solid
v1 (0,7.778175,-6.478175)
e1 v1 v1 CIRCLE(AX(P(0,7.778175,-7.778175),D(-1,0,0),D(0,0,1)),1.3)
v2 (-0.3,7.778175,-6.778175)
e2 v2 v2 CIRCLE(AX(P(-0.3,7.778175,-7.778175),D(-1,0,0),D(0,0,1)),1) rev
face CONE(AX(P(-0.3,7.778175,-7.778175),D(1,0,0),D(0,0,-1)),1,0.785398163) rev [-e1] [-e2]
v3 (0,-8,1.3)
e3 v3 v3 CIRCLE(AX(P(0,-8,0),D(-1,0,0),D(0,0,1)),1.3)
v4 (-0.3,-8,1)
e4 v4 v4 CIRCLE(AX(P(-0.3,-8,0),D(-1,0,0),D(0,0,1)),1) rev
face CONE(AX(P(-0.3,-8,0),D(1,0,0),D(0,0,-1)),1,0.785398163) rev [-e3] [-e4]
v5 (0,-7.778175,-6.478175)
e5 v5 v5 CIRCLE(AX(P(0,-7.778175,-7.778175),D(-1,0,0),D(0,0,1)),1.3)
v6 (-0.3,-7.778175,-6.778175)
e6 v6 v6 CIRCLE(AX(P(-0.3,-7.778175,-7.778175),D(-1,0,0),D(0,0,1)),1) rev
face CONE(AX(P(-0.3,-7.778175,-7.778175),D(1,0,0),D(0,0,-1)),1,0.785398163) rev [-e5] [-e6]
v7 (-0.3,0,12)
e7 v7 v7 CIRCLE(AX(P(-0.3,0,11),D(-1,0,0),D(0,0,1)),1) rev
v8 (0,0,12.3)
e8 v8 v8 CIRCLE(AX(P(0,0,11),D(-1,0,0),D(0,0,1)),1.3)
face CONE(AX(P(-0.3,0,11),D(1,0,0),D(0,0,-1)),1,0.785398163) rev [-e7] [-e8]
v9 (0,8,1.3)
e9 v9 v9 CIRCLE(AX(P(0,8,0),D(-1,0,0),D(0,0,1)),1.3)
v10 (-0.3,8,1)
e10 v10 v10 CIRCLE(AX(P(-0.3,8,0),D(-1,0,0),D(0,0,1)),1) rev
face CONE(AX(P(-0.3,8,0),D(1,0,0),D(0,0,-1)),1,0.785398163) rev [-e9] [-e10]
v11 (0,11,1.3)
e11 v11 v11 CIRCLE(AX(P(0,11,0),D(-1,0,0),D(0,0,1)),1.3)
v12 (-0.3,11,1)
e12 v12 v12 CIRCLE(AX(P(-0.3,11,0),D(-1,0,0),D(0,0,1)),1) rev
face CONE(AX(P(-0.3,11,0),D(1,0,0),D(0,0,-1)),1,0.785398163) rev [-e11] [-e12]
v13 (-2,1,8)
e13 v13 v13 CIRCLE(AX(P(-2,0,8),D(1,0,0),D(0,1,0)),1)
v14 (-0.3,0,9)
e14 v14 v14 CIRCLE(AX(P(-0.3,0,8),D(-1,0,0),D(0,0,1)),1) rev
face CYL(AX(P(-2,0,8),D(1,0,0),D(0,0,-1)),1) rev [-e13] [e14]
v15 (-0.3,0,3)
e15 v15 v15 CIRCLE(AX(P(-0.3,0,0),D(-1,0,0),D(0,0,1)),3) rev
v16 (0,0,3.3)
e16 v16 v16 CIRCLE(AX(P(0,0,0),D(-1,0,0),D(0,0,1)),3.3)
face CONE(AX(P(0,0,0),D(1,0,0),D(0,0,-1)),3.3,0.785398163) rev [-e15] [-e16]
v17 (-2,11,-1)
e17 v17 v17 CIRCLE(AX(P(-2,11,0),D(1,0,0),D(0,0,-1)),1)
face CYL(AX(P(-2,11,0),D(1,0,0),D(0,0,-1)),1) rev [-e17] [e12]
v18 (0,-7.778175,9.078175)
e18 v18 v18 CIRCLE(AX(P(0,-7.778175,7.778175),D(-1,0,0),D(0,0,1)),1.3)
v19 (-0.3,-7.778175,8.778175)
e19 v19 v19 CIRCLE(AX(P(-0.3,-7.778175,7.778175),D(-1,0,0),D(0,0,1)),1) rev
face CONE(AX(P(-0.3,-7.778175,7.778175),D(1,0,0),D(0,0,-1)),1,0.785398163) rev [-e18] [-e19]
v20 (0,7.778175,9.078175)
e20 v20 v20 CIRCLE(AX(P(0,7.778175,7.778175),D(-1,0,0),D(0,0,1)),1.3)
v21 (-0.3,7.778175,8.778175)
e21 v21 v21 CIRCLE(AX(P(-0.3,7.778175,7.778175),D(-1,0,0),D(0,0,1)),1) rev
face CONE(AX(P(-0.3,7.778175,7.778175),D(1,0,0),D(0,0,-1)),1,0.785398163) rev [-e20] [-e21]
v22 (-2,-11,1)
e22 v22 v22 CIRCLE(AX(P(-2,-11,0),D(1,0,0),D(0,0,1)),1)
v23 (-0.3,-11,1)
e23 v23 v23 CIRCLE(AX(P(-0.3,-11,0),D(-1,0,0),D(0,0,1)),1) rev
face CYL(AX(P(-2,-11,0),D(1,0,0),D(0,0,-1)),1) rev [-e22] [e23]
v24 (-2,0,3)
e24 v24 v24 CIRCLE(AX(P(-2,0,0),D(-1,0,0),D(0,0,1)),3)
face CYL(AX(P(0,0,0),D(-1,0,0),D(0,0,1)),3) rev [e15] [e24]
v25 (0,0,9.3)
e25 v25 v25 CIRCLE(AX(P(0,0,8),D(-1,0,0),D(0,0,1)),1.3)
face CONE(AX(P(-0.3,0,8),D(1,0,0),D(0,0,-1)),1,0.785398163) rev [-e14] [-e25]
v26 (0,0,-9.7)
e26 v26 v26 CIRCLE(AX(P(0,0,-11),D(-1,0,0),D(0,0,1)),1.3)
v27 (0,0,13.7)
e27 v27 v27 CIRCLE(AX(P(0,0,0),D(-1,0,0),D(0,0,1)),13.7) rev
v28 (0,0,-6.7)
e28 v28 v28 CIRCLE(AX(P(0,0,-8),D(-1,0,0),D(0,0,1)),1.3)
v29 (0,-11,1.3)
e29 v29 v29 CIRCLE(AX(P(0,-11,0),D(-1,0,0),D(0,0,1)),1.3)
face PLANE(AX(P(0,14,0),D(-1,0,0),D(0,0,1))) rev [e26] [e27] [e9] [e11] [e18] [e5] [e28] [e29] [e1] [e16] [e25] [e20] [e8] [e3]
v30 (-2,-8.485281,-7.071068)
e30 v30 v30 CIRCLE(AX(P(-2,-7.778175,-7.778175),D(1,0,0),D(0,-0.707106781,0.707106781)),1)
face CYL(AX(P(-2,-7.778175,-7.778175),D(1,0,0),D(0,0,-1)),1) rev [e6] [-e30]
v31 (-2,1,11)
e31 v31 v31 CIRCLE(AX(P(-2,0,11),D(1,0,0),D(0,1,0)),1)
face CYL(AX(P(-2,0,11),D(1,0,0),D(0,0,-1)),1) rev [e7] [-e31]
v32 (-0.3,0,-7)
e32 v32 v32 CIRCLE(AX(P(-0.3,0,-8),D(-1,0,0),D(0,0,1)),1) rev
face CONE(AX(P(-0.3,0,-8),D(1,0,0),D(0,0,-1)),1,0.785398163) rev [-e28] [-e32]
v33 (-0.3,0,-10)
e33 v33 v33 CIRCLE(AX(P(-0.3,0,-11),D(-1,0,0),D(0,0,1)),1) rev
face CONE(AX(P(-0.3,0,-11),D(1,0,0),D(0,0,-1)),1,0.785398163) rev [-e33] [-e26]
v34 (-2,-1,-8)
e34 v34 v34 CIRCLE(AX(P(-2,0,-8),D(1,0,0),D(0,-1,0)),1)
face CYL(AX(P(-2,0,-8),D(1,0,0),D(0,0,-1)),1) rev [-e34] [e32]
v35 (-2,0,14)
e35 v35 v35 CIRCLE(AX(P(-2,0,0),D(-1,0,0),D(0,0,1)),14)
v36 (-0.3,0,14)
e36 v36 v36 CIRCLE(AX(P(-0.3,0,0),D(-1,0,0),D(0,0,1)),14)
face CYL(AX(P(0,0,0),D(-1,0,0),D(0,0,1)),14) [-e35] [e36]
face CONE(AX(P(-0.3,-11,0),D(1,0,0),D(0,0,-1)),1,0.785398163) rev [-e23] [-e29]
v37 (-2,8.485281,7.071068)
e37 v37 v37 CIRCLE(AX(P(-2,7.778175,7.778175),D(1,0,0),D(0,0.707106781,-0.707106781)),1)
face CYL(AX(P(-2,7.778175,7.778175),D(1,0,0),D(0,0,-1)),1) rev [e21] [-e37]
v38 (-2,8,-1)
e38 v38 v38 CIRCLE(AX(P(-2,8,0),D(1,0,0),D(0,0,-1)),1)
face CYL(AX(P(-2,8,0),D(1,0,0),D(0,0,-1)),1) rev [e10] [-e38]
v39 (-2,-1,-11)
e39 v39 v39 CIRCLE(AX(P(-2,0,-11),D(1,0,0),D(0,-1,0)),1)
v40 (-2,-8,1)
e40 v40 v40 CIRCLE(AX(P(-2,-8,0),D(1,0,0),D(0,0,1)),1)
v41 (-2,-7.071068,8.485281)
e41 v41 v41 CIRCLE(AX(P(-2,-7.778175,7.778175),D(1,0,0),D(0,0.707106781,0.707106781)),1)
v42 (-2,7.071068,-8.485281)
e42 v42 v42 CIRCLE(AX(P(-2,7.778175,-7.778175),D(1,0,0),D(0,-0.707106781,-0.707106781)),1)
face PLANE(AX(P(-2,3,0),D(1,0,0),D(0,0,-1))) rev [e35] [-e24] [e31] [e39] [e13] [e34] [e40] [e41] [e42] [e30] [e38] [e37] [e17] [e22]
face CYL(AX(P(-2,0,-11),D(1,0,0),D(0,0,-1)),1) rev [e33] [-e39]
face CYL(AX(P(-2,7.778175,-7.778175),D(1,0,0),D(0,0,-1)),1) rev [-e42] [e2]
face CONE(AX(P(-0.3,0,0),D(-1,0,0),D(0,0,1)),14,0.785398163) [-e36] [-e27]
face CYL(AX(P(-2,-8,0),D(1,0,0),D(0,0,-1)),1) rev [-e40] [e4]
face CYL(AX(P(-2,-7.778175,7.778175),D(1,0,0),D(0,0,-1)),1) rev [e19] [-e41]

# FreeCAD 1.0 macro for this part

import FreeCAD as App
import Part
import Sketcher
from FreeCAD import Vector


def edges_at(feature, points):
    """Names of the edges that pass closest to the given points."""
    edges = feature.Shape.Edges
    near = lambda p: min(range(len(edges)), key=lambda i: edges[i].distToShape(Part.Vertex(*p))[0])
    return sorted({f"Edge{near(p) + 1}" for p in points})

doc = App.newDocument("Part")
body = doc.addObject("PartDesign::Body", "Body")

# Sketch on XY plane
sketch1 = body.newObject("Sketcher::SketchObject", "Sketch")
sketch1.AttachmentSupport = (doc.getObject("XY_Plane"), [""])
sketch1.MapMode = "FlatFace"
sketch1.addGeometry([
    Part.LineSegment(Vector(-2, 14, 0), Vector(-2, 3, 0)),
    Part.LineSegment(Vector(-2, 3, 0), Vector(0, 3, 0)),
    Part.LineSegment(Vector(0, 3, 0), Vector(0, 14, 0)),
    Part.LineSegment(Vector(0, 14, 0), Vector(-2, 14, 0)),
], False)
sketch1.addConstraint([
    Sketcher.Constraint("Coincident", 0, 2, 1, 1),
    Sketcher.Constraint("Coincident", 1, 2, 2, 1),
    Sketcher.Constraint("Coincident", 2, 2, 3, 1),
    Sketcher.Constraint("Coincident", 3, 2, 0, 1),
    Sketcher.Constraint("Vertical", 0),
    Sketcher.Constraint("Horizontal", 1),
    Sketcher.Constraint("Vertical", 2),
    Sketcher.Constraint("Horizontal", 3),
    Sketcher.Constraint("PointOnObject", 1, 2, -2),
    Sketcher.Constraint("DistanceX", 1, 1, 1, 2, 2.0),
    Sketcher.Constraint("DistanceY", 0, 2, 0, 1, 11.0),
    Sketcher.Constraint("DistanceY", -1, 1, 0, 2, 3.0),
])
revolution = body.newObject("PartDesign::Revolution", "Revolution")
revolution.Profile = sketch1
revolution.ReferenceAxis = (sketch1, ["H_Axis"])
revolution.Angle = 360

# Sketch on YZ plane
sketch2 = body.newObject("Sketcher::SketchObject", "Sketch001")
sketch2.AttachmentSupport = (doc.getObject("YZ_Plane"), [""])
sketch2.MapMode = "FlatFace"
sketch2.addGeometry(Part.Circle(Vector(11, 0, 0), Vector(0, 0, 1), 1), False)
sketch2.addConstraint([
    Sketcher.Constraint("PointOnObject", 0, 3, -1),
    Sketcher.Constraint("Diameter", 0, 2.0),
    Sketcher.Constraint("DistanceX", -1, 1, 0, 3, 11.0),
])
pocket1 = body.newObject("PartDesign::Pocket", "Pocket")
pocket1.Profile = sketch2
pocket1.Type = "ThroughAll"
doc.recompute()

polarpattern = body.newObject("PartDesign::PolarPattern", "PolarPattern")
polarpattern.Originals = [pocket1]
polarpattern.Axis = (doc.getObject("X_Axis"), [""])
polarpattern.Angle = 360
polarpattern.Occurrences = 8
body.Tip = polarpattern

# Sketch on YZ plane
sketch3 = body.newObject("Sketcher::SketchObject", "Sketch002")
sketch3.AttachmentSupport = (doc.getObject("YZ_Plane"), [""])
sketch3.MapMode = "FlatFace"
sketch3.addGeometry(Part.Circle(Vector(8, 0, 0), Vector(0, 0, 1), 1), False)
sketch3.addConstraint([
    Sketcher.Constraint("PointOnObject", 0, 3, -1),
    Sketcher.Constraint("Diameter", 0, 2.0),
    Sketcher.Constraint("DistanceX", -1, 1, 0, 3, 8.0),
])
pocket2 = body.newObject("PartDesign::Pocket", "Pocket001")
pocket2.Profile = sketch3
pocket2.Type = "ThroughAll"
doc.recompute()

polarpattern2 = body.newObject("PartDesign::PolarPattern", "PolarPattern001")
polarpattern2.Originals = [pocket2]
polarpattern2.Axis = (doc.getObject("X_Axis"), [""])
polarpattern2.Angle = 360
polarpattern2.Occurrences = 4
body.Tip = polarpattern2
doc.recompute()

chamfer = body.newObject("PartDesign::Chamfer", "Chamfer")
chamfer.Base = (polarpattern2, edges_at(polarpattern2, [
    (0, 11, 1),
    (0, 8.485, -7.071),
    (0, 1, -11),
    (0, -7.071, -8.485),
    (0, -11, -1),
    (0, -8.485, 7.071),
    (0, -1, 11),
    (0, 0, -3),
    (0, 7.071, 8.485),
    (0, 0, -14),
    (0, 8, 1),
    (0, 1, -8),
    (0, -8, -1),
    (0, -1, 8),
]))
chamfer.Size = 0.3

doc.recompute()
